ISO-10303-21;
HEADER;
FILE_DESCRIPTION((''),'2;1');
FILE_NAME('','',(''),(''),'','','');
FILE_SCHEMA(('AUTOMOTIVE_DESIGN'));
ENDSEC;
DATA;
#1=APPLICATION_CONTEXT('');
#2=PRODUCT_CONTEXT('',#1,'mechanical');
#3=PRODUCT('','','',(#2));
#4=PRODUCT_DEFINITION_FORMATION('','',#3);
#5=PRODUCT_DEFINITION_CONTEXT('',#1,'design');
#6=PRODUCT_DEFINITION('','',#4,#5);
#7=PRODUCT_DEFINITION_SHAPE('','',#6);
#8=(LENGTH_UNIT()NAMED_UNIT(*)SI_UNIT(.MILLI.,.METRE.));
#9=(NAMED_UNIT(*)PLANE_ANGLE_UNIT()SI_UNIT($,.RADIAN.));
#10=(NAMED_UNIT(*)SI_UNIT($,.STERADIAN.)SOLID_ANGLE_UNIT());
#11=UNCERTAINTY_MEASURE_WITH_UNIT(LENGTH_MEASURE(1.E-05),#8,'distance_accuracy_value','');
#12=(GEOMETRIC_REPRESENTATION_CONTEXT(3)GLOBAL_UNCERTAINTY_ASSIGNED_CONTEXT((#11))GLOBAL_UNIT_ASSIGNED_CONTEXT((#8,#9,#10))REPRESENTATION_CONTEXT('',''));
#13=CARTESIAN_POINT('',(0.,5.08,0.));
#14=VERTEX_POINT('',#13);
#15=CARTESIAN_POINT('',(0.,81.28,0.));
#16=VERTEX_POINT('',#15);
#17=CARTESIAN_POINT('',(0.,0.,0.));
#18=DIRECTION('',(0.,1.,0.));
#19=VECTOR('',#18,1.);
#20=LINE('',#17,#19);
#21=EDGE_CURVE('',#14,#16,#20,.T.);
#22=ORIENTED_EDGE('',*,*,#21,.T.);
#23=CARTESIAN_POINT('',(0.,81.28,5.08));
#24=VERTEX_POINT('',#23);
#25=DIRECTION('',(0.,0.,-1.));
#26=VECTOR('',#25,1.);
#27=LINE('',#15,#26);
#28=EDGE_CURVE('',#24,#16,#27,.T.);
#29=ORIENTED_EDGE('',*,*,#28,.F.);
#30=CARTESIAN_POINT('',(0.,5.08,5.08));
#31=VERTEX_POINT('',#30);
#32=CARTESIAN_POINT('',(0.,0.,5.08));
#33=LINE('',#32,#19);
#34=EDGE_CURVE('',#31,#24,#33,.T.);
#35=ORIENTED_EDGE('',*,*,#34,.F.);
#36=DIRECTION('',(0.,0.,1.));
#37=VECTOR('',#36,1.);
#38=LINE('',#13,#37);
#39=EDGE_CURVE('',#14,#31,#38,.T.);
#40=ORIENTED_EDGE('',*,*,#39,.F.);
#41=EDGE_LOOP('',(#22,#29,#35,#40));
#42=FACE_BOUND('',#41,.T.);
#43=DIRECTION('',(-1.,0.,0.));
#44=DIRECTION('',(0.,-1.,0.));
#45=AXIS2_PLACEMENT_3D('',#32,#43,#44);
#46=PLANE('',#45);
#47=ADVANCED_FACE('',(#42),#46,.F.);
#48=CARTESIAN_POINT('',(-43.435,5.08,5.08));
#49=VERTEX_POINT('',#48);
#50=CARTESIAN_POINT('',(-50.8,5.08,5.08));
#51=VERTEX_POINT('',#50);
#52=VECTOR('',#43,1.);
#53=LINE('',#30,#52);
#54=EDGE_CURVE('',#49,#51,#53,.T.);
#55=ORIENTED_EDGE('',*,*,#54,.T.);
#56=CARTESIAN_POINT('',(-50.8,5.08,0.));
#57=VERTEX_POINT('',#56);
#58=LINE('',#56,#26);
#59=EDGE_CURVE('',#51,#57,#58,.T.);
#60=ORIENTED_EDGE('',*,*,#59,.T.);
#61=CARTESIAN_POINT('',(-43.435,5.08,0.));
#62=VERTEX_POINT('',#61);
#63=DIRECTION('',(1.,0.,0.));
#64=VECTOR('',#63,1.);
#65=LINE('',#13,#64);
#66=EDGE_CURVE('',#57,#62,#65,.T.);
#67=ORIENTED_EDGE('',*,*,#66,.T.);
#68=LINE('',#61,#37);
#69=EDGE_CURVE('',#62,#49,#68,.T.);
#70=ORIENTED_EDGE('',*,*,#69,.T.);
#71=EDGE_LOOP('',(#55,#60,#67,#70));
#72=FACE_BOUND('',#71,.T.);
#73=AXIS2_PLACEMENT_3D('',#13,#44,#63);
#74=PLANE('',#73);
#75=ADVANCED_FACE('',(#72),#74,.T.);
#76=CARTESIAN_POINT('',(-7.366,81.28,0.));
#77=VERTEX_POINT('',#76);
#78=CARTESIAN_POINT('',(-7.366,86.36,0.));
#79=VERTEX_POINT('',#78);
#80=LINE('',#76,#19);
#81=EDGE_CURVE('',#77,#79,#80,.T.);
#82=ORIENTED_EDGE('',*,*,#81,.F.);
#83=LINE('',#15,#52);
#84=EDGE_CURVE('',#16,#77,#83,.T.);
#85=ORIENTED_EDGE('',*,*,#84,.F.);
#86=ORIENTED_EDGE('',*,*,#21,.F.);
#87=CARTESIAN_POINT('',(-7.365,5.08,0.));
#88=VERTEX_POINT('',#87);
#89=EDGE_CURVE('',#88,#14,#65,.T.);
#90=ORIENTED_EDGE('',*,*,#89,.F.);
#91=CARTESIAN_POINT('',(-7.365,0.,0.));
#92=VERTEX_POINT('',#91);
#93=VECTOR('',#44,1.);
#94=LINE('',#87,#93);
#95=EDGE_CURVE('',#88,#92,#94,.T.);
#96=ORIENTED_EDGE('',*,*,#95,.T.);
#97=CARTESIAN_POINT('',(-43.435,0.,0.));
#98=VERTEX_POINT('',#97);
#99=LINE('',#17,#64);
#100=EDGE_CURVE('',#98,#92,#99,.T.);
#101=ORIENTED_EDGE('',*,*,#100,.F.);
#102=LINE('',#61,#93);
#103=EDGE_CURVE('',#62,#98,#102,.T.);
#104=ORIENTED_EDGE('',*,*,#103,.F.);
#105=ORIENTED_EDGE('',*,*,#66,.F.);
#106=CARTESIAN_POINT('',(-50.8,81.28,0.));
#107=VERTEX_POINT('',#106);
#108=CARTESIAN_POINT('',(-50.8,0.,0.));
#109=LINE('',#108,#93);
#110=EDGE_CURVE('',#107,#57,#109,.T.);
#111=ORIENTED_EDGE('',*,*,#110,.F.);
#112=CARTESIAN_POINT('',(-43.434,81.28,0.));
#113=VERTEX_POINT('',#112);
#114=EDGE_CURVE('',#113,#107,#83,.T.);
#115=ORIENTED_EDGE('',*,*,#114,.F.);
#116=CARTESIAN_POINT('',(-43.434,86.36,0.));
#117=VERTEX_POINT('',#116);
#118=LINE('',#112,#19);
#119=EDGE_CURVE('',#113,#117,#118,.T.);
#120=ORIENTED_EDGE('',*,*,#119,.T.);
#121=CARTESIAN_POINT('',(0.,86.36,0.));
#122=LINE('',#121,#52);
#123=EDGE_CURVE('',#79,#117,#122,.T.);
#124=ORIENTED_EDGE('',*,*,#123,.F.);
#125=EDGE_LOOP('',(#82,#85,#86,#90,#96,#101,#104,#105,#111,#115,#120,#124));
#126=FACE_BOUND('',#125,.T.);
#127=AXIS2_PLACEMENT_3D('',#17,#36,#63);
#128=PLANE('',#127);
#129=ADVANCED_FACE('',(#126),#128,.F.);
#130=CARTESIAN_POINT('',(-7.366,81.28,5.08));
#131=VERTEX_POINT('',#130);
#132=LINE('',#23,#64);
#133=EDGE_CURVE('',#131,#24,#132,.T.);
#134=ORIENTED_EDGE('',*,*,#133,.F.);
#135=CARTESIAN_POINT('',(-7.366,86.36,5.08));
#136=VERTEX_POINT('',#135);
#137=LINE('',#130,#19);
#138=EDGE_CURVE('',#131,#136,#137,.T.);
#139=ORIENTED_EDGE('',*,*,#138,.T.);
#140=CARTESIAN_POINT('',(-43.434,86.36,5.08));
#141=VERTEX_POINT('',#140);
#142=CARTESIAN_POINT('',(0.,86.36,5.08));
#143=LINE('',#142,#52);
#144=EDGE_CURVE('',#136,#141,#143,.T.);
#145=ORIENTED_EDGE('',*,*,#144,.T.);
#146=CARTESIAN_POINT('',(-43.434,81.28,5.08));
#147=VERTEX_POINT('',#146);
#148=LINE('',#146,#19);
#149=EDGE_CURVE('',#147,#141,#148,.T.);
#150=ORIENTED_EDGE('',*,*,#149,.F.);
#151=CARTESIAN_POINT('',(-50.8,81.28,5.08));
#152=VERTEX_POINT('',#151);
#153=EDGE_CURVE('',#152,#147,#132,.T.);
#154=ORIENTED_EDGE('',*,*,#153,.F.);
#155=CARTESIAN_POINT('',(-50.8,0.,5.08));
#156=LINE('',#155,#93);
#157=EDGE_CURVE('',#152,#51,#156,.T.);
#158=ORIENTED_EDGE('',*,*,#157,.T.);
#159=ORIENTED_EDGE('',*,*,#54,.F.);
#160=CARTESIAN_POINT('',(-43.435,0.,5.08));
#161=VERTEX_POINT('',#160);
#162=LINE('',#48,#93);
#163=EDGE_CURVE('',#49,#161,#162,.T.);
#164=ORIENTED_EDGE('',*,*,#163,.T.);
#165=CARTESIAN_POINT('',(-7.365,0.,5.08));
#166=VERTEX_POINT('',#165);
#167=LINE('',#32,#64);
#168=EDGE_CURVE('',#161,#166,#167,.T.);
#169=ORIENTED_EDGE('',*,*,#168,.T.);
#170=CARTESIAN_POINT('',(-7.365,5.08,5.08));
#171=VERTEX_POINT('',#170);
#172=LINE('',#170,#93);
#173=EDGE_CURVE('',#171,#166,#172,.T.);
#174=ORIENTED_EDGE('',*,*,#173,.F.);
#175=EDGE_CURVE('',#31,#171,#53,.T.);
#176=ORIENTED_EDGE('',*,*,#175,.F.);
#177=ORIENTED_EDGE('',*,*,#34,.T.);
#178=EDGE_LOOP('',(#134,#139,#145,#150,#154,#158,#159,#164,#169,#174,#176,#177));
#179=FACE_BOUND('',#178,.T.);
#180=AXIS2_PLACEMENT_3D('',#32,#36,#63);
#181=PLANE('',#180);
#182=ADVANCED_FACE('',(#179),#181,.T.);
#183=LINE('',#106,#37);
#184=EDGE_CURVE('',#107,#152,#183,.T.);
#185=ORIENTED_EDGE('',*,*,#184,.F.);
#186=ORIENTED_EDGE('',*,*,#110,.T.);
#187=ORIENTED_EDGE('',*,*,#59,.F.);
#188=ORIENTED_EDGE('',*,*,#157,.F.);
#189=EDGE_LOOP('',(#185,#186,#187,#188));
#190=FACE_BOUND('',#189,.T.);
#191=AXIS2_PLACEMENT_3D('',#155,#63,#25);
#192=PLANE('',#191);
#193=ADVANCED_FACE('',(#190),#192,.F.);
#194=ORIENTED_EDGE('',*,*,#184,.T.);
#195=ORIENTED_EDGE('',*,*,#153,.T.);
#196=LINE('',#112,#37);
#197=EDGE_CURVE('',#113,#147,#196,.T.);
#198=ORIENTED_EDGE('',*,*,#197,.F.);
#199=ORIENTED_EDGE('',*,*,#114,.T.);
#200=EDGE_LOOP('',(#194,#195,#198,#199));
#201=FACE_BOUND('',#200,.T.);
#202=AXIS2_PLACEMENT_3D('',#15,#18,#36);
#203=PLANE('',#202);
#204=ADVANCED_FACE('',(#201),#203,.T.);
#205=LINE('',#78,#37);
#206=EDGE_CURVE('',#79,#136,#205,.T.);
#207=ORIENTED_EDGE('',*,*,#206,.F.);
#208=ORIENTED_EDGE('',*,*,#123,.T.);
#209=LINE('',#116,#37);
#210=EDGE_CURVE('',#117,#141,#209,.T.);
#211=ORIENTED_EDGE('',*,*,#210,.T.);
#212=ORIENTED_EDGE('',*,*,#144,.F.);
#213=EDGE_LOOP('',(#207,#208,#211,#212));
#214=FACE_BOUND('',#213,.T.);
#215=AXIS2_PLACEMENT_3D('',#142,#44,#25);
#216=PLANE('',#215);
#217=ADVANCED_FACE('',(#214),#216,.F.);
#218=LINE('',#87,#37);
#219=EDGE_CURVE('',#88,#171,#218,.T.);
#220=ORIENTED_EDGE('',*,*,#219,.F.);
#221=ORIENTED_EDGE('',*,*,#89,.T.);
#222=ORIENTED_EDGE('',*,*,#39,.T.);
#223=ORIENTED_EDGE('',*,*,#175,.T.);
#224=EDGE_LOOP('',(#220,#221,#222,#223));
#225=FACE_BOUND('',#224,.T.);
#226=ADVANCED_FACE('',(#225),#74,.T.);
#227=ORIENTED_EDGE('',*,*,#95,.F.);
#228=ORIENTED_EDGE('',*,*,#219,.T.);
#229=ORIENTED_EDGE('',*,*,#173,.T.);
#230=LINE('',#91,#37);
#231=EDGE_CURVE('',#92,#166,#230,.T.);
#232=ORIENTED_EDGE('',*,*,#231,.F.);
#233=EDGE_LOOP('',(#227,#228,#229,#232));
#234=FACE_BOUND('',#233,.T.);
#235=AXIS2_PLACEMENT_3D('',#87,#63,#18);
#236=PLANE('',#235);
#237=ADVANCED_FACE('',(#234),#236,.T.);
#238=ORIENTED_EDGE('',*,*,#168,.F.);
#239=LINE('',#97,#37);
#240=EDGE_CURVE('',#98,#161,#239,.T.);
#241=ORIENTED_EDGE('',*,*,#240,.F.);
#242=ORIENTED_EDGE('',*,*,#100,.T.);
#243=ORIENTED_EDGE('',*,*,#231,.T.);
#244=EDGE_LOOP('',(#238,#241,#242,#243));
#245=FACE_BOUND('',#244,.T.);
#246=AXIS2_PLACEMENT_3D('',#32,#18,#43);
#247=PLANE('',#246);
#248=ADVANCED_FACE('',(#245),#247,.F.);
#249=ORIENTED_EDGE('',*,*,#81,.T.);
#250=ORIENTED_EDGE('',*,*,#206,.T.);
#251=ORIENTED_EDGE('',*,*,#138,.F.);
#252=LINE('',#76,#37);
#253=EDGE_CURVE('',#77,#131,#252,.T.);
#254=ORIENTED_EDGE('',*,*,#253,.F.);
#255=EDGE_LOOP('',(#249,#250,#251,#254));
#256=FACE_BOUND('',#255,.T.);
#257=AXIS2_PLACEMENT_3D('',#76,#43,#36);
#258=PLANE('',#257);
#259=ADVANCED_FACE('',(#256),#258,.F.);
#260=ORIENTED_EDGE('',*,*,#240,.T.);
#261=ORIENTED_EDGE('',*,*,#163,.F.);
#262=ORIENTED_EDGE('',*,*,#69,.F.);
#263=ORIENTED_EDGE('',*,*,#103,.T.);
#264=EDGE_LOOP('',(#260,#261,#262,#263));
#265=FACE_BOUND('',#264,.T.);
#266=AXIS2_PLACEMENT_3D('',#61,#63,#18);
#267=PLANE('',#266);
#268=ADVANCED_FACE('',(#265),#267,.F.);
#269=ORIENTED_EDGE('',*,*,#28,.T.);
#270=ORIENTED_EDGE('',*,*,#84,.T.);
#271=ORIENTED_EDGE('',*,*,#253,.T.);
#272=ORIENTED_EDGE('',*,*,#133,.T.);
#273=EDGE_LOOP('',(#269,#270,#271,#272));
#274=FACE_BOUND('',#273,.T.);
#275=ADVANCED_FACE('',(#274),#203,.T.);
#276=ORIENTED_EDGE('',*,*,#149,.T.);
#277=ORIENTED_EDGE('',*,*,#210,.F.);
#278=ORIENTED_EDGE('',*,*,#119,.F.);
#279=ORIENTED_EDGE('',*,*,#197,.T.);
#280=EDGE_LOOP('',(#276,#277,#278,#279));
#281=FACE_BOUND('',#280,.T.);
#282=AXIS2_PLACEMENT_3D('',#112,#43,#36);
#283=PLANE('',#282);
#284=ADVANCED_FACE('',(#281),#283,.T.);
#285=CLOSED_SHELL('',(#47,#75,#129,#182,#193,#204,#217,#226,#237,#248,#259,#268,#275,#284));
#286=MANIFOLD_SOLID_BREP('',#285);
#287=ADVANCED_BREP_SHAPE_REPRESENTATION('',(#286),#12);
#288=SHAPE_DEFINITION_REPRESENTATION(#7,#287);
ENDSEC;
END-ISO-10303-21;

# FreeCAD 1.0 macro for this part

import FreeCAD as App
import Part
import Sketcher
from FreeCAD import Vector
Q = App.Units.Quantity


def add_polygon(sketch, points):
    """Adds a closed chain of lines whose ends are joined by coincident constraints."""
    first, n = sketch.GeometryCount, len(points)
    for a, b in zip(points, points[1:] + points[:1]):
        sketch.addGeometry(Part.LineSegment(App.Vector(*a, 0), App.Vector(*b, 0)), False)
    for i in range(n):
        sketch.addConstraint(Sketcher.Constraint("Coincident", first + i, 2, first + (i + 1) % n, 1))

doc = App.newDocument("Part")
params = doc.addObject("Spreadsheet::Sheet", "Params")
for row, (alias, value) in enumerate([
    ("sketch1_width", "2 in"),
    ("sketch1_height", "3.4 in"),
    ("pad1_length", "0.2 in"),
    ("sketch2_height", "0.2 in"),
    ("sketch2_width", "0.29 in"),
    ("pocket1_length", "0.2 in"),
    ("sketch3_height", "0.2 in"),
    ("pocket2_length", "0.2 in"),
], start=1):
    params.set(f"A{row}", alias)
    params.set(f"B{row}", "=" + value)
    params.setAlias(f"B{row}", alias)

body = doc.addObject("PartDesign::Body", "Body")

sketch1 = doc.addObject("Sketcher::SketchObject", "Sketch")
body.addObject(sketch1)
sketch1.AttachmentSupport = (doc.XY_Plane, [""])
sketch1.MapMode = "FlatFace"
add_polygon(sketch1, [(-50.8, 86.36), (-50.8, 0), (0, 0), (0, 86.36)])
sketch1.addConstraint([
    Sketcher.Constraint("Vertical", 0),
    Sketcher.Constraint("Horizontal", 1),
    Sketcher.Constraint("Vertical", 2),
    Sketcher.Constraint("Horizontal", 3),
    Sketcher.Constraint("Coincident", 1, 2, -1, 1),
    Sketcher.Constraint("DistanceX", 1, 1, 1, 2, Q("2 in")),
    Sketcher.Constraint("DistanceY", 0, 2, 0, 1, Q("3.4 in")),
])
sketch1.setExpression("Constraints[9]", "Params.sketch1_width")
sketch1.setExpression("Constraints[10]", "Params.sketch1_height")
pad1 = doc.addObject("PartDesign::Pad", "Pad")
body.addObject(pad1)
pad1.Profile = sketch1
pad1.setExpression("Length", "Params.pad1_length")

sketch2 = doc.addObject("Sketcher::SketchObject", "Sketch001")
body.addObject(sketch2)
sketch2.AttachmentSupport = (doc.XZ_Plane, [""])
sketch2.MapMode = "FlatFace"
sketch2.AttachmentOffset = App.Placement(Vector(0, 0, -3.4 * 25.4), App.Rotation())
add_polygon(sketch2, [(-50.8, 0), (-50.8, 5.08), (-43.434, 5.08), (-43.434, 0)])
add_polygon(sketch2, [(-7.366, 0), (-7.366, 5.08), (0, 5.08), (0, 0)])
sketch2.addConstraint([
    Sketcher.Constraint("Vertical", 0),
    Sketcher.Constraint("Horizontal", 1),
    Sketcher.Constraint("Vertical", 2),
    Sketcher.Constraint("Horizontal", 3),
    Sketcher.Constraint("Vertical", 4),
    Sketcher.Constraint("Horizontal", 5),
    Sketcher.Constraint("Vertical", 6),
    Sketcher.Constraint("Horizontal", 7),
    Sketcher.Constraint("Coincident", 6, 2, -1, 1),
    Sketcher.Constraint("PointOnObject", 2, 2, -1),
    Sketcher.Constraint("Horizontal", 1, 2, 4, 2),
    Sketcher.Constraint("Equal", 3, 5),
    Sketcher.Constraint("DistanceY", 0, 1, 0, 2, Q("0.2 in")),
    Sketcher.Constraint("DistanceX", 0, 2, -1, 1, Q("2 in")),
    Sketcher.Constraint("DistanceX", 1, 1, 1, 2, Q("0.29 in")),
])
sketch2.setExpression("Constraints[20]", "Params.sketch2_height")
sketch2.setExpression("Constraints[22]", "Params.sketch2_width")
pocket1 = doc.addObject("PartDesign::Pocket", "Pocket")
body.addObject(pocket1)
pocket1.Profile = sketch2
pocket1.setExpression("Length", "Params.pocket1_length")
pocket1.Reversed = True

sketch3 = doc.addObject("Sketcher::SketchObject", "Sketch002")
body.addObject(sketch3)
sketch3.AttachmentSupport = (doc.XZ_Plane, [""])
sketch3.MapMode = "FlatFace"
add_polygon(sketch3, [(-43.435, 0), (-43.435, 5.08), (-50.8, 5.08), (-50.8, 0)])
add_polygon(sketch3, [(0, 0), (0, 5.08), (-7.365, 5.08), (-7.365, 0)])
sketch3.addConstraint([
    Sketcher.Constraint("Vertical", 0),
    Sketcher.Constraint("Horizontal", 1),
    Sketcher.Constraint("Vertical", 2),
    Sketcher.Constraint("Horizontal", 3),
    Sketcher.Constraint("Vertical", 4),
    Sketcher.Constraint("Horizontal", 5),
    Sketcher.Constraint("Vertical", 6),
    Sketcher.Constraint("Horizontal", 7),
    Sketcher.Constraint("Coincident", 7, 2, -1, 1),
    Sketcher.Constraint("PointOnObject", 2, 2, -1),
    Sketcher.Constraint("Horizontal", 1, 2, 4, 2),
    Sketcher.Constraint("Equal", 3, 5),
    Sketcher.Constraint("DistanceY", 0, 1, 0, 2, Q("0.2 in")),
    Sketcher.Constraint("DistanceX", 1, 2, -1, 1, Q("2 in")),
    Sketcher.Constraint("DistanceX", 1, 2, 1, 1, 7.365),
])
sketch3.setExpression("Constraints[20]", "Params.sketch3_height")
pocket2 = doc.addObject("PartDesign::Pocket", "Pocket001")
body.addObject(pocket2)
pocket2.Profile = sketch3
pocket2.setExpression("Length", "Params.pocket2_length")

doc.recompute()
